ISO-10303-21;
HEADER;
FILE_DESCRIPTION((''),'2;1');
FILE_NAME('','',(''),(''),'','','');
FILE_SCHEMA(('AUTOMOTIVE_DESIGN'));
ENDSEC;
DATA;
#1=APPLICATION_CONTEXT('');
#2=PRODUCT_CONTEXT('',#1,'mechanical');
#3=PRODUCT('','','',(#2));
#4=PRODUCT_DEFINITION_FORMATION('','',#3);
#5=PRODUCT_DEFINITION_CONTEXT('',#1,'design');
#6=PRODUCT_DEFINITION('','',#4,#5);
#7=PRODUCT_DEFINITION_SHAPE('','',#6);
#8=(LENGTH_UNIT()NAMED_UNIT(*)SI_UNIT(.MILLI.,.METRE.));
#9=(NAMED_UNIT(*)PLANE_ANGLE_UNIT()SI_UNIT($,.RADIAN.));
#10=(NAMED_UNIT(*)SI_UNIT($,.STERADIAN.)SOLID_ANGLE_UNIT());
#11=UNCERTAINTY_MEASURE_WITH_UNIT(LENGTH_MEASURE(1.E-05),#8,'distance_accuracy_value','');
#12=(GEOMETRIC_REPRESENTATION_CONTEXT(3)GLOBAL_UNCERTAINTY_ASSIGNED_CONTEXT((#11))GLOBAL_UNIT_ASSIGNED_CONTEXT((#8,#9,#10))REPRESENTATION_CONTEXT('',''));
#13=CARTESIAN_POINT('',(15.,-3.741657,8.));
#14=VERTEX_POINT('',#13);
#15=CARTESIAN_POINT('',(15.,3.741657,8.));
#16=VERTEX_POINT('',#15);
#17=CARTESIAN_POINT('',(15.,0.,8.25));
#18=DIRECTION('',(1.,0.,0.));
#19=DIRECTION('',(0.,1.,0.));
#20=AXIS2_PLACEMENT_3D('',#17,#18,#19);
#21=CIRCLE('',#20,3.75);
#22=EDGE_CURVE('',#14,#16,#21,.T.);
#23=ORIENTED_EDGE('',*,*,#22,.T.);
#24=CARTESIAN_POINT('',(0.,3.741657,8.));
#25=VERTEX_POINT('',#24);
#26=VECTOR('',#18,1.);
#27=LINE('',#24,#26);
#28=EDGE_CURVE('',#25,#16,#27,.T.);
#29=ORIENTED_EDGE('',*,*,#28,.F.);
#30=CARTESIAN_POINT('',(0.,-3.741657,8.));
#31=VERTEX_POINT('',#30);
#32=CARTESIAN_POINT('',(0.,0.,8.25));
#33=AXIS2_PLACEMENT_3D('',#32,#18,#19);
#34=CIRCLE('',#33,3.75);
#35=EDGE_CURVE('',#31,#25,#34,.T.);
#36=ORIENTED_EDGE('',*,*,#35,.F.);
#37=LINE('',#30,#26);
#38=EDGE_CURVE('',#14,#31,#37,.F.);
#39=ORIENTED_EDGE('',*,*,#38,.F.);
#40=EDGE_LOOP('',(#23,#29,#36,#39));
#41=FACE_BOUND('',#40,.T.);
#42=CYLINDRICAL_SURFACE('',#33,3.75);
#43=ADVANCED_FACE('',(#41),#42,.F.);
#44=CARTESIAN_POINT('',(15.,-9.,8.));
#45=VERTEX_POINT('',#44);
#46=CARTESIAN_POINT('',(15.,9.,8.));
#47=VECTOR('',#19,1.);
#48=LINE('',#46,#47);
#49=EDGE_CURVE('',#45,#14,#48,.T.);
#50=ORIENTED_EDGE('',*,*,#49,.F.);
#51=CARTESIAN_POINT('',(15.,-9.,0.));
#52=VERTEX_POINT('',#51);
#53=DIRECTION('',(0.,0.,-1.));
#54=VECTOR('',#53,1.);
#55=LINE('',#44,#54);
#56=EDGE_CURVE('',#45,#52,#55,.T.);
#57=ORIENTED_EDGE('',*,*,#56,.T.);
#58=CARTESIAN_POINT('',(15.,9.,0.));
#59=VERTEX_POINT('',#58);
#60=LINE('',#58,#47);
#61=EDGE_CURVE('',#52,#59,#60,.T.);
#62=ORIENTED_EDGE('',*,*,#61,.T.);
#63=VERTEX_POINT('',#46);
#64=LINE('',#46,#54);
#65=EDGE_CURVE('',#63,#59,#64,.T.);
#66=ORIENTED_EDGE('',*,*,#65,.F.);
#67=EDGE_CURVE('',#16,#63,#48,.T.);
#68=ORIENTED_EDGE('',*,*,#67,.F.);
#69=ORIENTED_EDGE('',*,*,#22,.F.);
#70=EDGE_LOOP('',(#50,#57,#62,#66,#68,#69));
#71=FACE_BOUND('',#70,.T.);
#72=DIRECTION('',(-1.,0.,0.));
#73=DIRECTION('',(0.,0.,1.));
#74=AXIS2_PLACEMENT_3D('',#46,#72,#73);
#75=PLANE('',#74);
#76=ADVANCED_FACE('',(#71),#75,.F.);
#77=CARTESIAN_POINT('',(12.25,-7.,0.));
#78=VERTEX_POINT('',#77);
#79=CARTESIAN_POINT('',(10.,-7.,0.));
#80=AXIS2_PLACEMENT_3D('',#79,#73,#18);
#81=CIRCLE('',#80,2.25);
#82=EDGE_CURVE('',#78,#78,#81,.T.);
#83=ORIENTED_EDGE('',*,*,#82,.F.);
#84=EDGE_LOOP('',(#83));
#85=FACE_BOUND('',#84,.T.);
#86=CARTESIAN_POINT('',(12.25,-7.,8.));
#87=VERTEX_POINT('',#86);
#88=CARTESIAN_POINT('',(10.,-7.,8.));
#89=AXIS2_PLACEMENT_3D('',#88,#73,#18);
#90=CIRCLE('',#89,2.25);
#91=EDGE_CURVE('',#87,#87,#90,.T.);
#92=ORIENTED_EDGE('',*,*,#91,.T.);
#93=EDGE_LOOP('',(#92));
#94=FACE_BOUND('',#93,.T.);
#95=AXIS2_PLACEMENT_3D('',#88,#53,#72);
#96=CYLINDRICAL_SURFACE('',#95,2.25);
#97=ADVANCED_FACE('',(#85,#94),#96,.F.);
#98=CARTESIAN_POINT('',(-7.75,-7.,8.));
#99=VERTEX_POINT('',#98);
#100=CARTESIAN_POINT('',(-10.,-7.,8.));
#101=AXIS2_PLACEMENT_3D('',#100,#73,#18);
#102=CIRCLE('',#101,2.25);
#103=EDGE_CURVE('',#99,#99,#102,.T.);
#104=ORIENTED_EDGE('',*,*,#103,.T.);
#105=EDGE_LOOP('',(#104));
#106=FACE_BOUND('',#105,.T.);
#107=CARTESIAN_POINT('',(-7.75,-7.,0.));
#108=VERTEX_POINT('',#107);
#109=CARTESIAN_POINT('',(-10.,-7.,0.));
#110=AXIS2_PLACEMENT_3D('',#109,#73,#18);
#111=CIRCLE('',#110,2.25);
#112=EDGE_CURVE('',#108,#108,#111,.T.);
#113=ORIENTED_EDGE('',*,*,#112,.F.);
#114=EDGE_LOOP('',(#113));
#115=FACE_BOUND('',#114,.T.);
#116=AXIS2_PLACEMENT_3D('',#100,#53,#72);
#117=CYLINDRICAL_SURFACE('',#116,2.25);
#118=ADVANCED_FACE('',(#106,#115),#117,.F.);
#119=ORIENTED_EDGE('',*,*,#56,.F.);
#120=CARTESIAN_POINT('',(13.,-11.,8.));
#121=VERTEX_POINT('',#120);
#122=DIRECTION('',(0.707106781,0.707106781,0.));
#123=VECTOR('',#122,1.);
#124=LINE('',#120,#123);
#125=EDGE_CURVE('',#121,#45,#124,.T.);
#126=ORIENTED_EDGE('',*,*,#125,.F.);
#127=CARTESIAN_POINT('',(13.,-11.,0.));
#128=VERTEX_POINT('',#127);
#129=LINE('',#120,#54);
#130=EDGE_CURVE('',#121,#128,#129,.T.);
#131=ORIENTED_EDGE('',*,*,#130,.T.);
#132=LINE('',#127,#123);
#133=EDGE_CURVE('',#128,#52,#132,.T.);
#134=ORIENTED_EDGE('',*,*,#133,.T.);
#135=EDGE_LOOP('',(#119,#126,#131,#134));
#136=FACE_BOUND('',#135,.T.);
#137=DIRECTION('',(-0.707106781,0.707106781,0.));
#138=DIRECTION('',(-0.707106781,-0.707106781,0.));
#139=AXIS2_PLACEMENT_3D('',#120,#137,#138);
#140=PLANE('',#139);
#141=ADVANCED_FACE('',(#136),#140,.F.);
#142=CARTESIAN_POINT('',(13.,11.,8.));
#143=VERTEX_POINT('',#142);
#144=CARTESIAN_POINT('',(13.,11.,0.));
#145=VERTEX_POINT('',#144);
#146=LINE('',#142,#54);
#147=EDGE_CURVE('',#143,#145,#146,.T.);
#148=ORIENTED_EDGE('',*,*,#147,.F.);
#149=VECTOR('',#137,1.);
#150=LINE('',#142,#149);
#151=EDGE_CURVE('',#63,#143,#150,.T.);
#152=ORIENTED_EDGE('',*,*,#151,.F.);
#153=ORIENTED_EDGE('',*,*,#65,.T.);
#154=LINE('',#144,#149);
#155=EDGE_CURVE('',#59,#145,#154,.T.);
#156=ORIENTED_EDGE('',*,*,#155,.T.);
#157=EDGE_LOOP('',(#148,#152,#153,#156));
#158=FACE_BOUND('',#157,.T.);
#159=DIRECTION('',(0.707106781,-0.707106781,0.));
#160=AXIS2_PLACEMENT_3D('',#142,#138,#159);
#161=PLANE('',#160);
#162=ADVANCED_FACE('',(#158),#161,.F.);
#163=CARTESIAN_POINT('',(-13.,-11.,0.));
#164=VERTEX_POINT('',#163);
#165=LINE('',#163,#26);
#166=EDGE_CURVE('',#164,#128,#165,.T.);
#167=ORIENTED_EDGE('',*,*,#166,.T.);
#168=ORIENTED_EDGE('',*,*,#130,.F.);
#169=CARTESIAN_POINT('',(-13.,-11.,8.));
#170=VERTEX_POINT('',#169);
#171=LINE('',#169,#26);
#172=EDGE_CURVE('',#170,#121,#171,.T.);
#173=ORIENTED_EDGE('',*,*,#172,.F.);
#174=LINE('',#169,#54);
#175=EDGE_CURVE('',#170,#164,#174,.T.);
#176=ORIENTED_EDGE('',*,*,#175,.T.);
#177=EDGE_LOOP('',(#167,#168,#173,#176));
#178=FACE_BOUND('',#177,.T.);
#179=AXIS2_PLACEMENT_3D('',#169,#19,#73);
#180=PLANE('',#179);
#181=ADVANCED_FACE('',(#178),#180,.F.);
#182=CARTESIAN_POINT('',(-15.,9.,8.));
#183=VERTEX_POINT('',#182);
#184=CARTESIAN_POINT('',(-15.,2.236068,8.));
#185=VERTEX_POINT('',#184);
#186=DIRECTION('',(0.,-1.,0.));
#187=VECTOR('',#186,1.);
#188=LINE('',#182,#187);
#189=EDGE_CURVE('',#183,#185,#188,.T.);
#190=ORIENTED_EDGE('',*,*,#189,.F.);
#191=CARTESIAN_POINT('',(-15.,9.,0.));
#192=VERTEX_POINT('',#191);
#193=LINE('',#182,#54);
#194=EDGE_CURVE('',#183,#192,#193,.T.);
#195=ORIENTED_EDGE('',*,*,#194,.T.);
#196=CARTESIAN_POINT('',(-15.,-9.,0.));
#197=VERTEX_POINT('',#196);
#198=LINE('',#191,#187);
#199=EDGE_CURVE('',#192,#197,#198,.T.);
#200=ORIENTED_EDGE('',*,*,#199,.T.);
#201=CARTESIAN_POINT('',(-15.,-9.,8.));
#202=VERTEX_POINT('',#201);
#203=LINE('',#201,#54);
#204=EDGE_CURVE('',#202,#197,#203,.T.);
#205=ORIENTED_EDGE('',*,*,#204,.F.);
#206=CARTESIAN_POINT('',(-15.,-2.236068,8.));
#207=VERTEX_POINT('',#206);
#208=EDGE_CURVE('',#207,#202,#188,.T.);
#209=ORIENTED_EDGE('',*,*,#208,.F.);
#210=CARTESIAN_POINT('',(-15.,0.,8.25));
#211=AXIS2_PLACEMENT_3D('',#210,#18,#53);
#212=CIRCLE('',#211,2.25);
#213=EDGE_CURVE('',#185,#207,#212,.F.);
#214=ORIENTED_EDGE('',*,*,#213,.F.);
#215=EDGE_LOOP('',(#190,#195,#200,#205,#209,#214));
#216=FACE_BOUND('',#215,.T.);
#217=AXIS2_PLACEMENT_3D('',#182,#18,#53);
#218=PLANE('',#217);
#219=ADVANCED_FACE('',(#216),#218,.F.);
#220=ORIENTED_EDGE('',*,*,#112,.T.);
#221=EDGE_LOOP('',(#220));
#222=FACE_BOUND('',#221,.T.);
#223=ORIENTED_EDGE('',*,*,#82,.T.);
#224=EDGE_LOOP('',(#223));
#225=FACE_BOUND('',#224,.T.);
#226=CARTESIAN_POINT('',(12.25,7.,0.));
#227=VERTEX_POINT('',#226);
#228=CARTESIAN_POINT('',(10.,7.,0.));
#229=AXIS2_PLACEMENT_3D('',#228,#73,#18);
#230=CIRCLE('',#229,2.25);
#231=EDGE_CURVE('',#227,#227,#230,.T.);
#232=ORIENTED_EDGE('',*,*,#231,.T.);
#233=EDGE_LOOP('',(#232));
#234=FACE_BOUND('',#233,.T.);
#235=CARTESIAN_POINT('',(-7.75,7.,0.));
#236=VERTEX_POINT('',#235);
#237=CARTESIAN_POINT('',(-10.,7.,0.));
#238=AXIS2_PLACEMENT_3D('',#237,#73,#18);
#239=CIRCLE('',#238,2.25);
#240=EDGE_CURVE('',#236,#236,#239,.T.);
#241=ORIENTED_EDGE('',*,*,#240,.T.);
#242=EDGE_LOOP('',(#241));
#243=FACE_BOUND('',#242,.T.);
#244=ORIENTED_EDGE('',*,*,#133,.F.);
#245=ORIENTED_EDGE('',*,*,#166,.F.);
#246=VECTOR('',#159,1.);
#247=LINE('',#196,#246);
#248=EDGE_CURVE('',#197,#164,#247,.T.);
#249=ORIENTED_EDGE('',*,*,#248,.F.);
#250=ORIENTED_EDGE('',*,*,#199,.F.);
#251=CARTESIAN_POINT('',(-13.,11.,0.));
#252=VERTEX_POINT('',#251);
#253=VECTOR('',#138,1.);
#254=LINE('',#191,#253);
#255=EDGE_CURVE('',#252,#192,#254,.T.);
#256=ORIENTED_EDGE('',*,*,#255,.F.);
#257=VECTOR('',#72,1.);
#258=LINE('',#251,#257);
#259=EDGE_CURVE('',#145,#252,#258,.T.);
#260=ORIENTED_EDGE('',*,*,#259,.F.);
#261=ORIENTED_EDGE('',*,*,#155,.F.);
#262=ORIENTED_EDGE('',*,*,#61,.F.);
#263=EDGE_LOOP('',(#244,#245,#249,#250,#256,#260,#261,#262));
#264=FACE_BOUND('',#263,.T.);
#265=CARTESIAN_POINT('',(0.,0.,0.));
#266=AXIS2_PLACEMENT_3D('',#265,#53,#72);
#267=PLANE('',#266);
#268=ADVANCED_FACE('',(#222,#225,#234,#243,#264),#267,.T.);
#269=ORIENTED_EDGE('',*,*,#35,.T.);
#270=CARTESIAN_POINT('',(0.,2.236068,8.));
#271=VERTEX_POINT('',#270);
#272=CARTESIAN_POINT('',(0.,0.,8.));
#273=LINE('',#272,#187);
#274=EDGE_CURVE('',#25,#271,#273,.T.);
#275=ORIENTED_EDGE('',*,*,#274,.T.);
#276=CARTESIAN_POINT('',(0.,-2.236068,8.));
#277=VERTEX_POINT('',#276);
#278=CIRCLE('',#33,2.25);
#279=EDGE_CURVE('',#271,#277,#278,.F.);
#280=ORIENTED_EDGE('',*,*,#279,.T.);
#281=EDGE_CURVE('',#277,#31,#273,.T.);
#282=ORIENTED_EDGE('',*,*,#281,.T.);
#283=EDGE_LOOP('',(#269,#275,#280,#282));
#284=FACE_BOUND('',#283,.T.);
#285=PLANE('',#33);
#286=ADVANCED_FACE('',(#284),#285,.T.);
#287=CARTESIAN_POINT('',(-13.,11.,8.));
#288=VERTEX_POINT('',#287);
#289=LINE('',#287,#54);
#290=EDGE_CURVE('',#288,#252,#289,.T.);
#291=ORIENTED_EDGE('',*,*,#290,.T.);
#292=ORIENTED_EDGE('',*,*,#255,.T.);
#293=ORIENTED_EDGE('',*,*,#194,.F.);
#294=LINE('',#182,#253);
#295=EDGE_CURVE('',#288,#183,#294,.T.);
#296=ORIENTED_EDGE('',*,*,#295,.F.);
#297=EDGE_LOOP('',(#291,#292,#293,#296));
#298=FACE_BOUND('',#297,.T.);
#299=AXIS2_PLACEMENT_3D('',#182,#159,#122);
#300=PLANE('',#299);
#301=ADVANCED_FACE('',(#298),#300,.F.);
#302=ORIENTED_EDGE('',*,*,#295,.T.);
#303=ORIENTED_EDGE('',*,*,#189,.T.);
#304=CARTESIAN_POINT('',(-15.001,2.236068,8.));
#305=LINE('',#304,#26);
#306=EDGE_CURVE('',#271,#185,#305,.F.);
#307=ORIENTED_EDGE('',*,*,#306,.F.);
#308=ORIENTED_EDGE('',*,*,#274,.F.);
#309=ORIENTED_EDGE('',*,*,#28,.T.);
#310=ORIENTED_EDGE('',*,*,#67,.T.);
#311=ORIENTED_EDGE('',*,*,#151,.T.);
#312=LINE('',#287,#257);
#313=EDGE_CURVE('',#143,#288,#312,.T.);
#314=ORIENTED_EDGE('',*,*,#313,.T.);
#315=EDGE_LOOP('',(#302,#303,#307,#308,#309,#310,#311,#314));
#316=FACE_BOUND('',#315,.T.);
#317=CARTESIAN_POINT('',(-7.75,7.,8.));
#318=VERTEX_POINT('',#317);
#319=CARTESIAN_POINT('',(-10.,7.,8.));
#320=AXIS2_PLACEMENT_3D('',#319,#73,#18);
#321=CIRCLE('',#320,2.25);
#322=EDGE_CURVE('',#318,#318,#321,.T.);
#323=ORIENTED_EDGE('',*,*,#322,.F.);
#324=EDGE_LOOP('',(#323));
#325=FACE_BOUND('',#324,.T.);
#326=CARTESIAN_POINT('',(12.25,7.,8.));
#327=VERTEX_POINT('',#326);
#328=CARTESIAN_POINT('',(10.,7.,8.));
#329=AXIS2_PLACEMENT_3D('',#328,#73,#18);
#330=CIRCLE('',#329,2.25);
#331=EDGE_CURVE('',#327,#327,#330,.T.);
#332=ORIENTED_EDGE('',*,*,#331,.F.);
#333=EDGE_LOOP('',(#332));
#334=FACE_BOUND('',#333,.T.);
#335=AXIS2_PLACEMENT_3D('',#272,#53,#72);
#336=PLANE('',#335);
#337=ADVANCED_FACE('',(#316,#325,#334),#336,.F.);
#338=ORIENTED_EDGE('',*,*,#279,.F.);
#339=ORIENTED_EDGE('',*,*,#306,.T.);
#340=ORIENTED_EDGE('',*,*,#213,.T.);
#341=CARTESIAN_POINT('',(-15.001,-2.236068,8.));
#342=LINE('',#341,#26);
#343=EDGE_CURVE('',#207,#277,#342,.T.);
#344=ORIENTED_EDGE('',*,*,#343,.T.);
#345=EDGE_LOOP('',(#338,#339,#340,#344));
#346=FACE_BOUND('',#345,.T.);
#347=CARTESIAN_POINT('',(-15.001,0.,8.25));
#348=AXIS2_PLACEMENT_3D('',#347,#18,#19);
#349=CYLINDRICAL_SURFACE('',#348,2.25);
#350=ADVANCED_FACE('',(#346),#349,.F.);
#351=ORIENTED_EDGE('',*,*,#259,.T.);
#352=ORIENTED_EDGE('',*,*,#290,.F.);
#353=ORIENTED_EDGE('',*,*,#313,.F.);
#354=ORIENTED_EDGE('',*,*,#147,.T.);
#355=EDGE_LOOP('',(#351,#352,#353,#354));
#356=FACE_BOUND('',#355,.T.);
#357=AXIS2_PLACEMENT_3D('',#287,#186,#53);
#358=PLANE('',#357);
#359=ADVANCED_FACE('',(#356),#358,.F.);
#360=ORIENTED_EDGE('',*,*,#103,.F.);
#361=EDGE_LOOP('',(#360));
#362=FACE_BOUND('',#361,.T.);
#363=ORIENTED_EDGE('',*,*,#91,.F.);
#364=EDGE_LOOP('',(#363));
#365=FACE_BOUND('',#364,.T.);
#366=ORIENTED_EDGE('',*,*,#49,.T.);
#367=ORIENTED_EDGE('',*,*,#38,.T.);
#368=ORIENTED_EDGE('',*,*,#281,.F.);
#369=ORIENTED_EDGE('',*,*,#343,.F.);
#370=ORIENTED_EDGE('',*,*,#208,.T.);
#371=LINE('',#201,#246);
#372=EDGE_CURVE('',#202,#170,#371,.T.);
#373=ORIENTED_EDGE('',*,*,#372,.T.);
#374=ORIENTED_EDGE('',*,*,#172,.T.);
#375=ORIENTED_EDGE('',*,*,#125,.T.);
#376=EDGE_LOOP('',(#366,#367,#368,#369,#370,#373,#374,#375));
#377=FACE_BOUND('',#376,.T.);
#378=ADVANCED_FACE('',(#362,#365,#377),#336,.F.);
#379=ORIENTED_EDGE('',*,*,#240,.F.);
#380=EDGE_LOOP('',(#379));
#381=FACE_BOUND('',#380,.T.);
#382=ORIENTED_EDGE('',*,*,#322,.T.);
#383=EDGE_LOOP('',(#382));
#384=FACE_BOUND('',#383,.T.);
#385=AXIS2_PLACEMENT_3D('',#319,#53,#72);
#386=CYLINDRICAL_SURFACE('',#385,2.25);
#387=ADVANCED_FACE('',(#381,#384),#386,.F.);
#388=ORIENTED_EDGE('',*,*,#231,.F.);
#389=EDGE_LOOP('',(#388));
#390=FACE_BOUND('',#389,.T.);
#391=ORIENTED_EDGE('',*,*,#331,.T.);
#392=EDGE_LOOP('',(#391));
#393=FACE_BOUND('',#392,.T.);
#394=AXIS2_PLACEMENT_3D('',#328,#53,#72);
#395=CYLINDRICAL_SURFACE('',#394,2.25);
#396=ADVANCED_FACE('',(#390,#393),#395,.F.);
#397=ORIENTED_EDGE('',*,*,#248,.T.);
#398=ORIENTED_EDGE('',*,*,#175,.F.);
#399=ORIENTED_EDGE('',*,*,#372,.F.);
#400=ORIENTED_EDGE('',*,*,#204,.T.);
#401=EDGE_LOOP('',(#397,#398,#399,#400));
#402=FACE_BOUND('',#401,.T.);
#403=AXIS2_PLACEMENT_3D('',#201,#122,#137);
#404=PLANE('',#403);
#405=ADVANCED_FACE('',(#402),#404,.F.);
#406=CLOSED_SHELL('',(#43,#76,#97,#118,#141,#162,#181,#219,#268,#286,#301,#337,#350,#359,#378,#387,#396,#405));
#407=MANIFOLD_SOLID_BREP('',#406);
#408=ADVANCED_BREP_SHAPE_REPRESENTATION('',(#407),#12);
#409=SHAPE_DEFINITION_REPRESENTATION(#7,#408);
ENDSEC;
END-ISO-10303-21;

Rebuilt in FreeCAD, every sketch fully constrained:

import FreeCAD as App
import Part
import Sketcher
Q = App.Units.Quantity

doc = App.newDocument("Part")
params = doc.addObject("Spreadsheet::Sheet", "Params")
for row, (alias, value) in enumerate([
    ("sketch1_diameter", "4.5 mm"),
    ("sketch1_width", "26 mm"),
    ("sketch1_height", "18 mm"),
    ("pad1_length", "8 mm"),
    ("sketch2_diameter", "4.5 mm"),
    ("pocket1_length", "30 mm"),
    ("sketch3_diameter", "7.5 mm"),
    ("pocket2_length", "15 mm"),
], start=1):
    params.set(f"A{row}", alias)
    params.set(f"B{row}", "=" + value)
    params.setAlias(f"B{row}", alias)

body = doc.addObject("PartDesign::Body", "Body")

sketch1 = doc.addObject("Sketcher::SketchObject", "Sketch")
body.addObject(sketch1)
sketch1.AttachmentSupport = (doc.XY_Plane, [""])
sketch1.MapMode = "FlatFace"
sketch1.addGeometry([
    Part.LineSegment(App.Vector(13, 11, 0), App.Vector(-13, 11, 0)),
    Part.LineSegment(App.Vector(-13, 11, 0), App.Vector(-15, 9, 0)),
    Part.LineSegment(App.Vector(-15, 9, 0), App.Vector(-15, -9, 0)),
    Part.LineSegment(App.Vector(-15, -9, 0), App.Vector(-13, -11, 0)),
    Part.LineSegment(App.Vector(-13, -11, 0), App.Vector(13, -11, 0)),
    Part.LineSegment(App.Vector(13, -11, 0), App.Vector(15, -9, 0)),
    Part.LineSegment(App.Vector(15, -9, 0), App.Vector(15, 9, 0)),
    Part.LineSegment(App.Vector(15, 9, 0), App.Vector(13, 11, 0)),
    Part.Circle(App.Vector(10, -7, 0), App.Vector(0, 0, 1), 2.25),
    Part.Circle(App.Vector(-10, -7, 0), App.Vector(0, 0, 1), 2.25),
    Part.Circle(App.Vector(10, 7, 0), App.Vector(0, 0, 1), 2.25),
    Part.Circle(App.Vector(-10, 7, 0), App.Vector(0, 0, 1), 2.25),
], False)
sketch1.addConstraint([
    Sketcher.Constraint("Coincident", 0, 2, 1, 1),
    Sketcher.Constraint("Coincident", 1, 2, 2, 1),
    Sketcher.Constraint("Coincident", 2, 2, 3, 1),
    Sketcher.Constraint("Coincident", 3, 2, 4, 1),
    Sketcher.Constraint("Coincident", 4, 2, 5, 1),
    Sketcher.Constraint("Coincident", 5, 2, 6, 1),
    Sketcher.Constraint("Coincident", 6, 2, 7, 1),
    Sketcher.Constraint("Coincident", 7, 2, 0, 1),
    Sketcher.Constraint("Horizontal", 0),
    Sketcher.Constraint("Vertical", 2),
    Sketcher.Constraint("Horizontal", 4),
    Sketcher.Constraint("Vertical", 6),
    Sketcher.Constraint("Equal", 8, 9),
    Sketcher.Constraint("Equal", 9, 10),
    Sketcher.Constraint("Equal", 10, 11),
    Sketcher.Constraint("Symmetric", 9, 3, 10, 3, -1, 1),
    Sketcher.Constraint("Symmetric", 8, 3, 11, 3, -1, 1),
    Sketcher.Constraint("Symmetric", 0, 2, 4, 2, -1, 1),
    Sketcher.Constraint("Symmetric", 1, 2, 5, 2, -1, 1),
    Sketcher.Constraint("Symmetric", 8, 3, 9, 3, -2),
    Sketcher.Constraint("Perpendicular", 1, 3),
    Sketcher.Constraint("Perpendicular", 5, 7),
    Sketcher.Constraint("Horizontal", 2, 2, 5, 2),
    Sketcher.Constraint("Horizontal", 1, 2, 6, 2),
    Sketcher.Constraint("Vertical", 0, 2, 3, 2),
    Sketcher.Constraint("Diameter", 8, Q("4.5 mm")),
    Sketcher.Constraint("DistanceX", 0, 2, 0, 1, Q("26 mm")),
    Sketcher.Constraint("DistanceY", 2, 2, 2, 1, Q("18 mm")),
    Sketcher.Constraint("DistanceX", -1, 1, 8, 3, Q("10 mm")),
    Sketcher.Constraint("DistanceY", 8, 3, -1, 1, Q("7 mm")),
    Sketcher.Constraint("DistanceY", -1, 1, 0, 2, Q("11 mm")),
])
sketch1.setExpression("Constraints[25]", "Params.sketch1_diameter")
sketch1.setExpression("Constraints[26]", "Params.sketch1_width")
sketch1.setExpression("Constraints[27]", "Params.sketch1_height")
pad1 = doc.addObject("PartDesign::Pad", "Pad")
body.addObject(pad1)
pad1.Profile = sketch1
pad1.setExpression("Length", "Params.pad1_length")

sketch2 = doc.addObject("Sketcher::SketchObject", "Sketch001")
body.addObject(sketch2)
sketch2.AttachmentSupport = (doc.YZ_Plane, [""])
sketch2.MapMode = "FlatFace"
sketch2.AttachmentOffset = App.Placement(App.Vector(0, 0, 15), App.Rotation())
sketch2.addGeometry(Part.Circle(App.Vector(0, 8.25, 0), App.Vector(0, 0, 1), 2.25), False)
sketch2.addConstraint([
    Sketcher.Constraint("PointOnObject", 0, 3, -2),
    Sketcher.Constraint("Diameter", 0, Q("4.5 mm")),
    Sketcher.Constraint("DistanceY", -1, 1, 0, 3, Q("8.25 mm")),
])
sketch2.setExpression("Constraints[1]", "Params.sketch2_diameter")
pocket1 = doc.addObject("PartDesign::Pocket", "Pocket")
body.addObject(pocket1)
pocket1.Profile = sketch2
pocket1.setExpression("Length", "Params.pocket1_length")

sketch3 = doc.addObject("Sketcher::SketchObject", "Sketch002")
body.addObject(sketch3)
sketch3.AttachmentSupport = (doc.YZ_Plane, [""])
sketch3.MapMode = "FlatFace"
sketch3.AttachmentOffset = App.Placement(App.Vector(0, 0, 15), App.Rotation())
sketch3.addGeometry(Part.Circle(App.Vector(0, 8.25, 0), App.Vector(0, 0, 1), 3.75), False)
sketch3.addConstraint([
    Sketcher.Constraint("PointOnObject", 0, 3, -2),
    Sketcher.Constraint("Diameter", 0, Q("7.5 mm")),
    Sketcher.Constraint("DistanceY", -1, 1, 0, 3, Q("8.25 mm")),
])
sketch3.setExpression("Constraints[1]", "Params.sketch3_diameter")
pocket2 = doc.addObject("PartDesign::Pocket", "Pocket001")
body.addObject(pocket2)
pocket2.Profile = sketch3
pocket2.setExpression("Length", "Params.pocket2_length")

doc.recompute()
